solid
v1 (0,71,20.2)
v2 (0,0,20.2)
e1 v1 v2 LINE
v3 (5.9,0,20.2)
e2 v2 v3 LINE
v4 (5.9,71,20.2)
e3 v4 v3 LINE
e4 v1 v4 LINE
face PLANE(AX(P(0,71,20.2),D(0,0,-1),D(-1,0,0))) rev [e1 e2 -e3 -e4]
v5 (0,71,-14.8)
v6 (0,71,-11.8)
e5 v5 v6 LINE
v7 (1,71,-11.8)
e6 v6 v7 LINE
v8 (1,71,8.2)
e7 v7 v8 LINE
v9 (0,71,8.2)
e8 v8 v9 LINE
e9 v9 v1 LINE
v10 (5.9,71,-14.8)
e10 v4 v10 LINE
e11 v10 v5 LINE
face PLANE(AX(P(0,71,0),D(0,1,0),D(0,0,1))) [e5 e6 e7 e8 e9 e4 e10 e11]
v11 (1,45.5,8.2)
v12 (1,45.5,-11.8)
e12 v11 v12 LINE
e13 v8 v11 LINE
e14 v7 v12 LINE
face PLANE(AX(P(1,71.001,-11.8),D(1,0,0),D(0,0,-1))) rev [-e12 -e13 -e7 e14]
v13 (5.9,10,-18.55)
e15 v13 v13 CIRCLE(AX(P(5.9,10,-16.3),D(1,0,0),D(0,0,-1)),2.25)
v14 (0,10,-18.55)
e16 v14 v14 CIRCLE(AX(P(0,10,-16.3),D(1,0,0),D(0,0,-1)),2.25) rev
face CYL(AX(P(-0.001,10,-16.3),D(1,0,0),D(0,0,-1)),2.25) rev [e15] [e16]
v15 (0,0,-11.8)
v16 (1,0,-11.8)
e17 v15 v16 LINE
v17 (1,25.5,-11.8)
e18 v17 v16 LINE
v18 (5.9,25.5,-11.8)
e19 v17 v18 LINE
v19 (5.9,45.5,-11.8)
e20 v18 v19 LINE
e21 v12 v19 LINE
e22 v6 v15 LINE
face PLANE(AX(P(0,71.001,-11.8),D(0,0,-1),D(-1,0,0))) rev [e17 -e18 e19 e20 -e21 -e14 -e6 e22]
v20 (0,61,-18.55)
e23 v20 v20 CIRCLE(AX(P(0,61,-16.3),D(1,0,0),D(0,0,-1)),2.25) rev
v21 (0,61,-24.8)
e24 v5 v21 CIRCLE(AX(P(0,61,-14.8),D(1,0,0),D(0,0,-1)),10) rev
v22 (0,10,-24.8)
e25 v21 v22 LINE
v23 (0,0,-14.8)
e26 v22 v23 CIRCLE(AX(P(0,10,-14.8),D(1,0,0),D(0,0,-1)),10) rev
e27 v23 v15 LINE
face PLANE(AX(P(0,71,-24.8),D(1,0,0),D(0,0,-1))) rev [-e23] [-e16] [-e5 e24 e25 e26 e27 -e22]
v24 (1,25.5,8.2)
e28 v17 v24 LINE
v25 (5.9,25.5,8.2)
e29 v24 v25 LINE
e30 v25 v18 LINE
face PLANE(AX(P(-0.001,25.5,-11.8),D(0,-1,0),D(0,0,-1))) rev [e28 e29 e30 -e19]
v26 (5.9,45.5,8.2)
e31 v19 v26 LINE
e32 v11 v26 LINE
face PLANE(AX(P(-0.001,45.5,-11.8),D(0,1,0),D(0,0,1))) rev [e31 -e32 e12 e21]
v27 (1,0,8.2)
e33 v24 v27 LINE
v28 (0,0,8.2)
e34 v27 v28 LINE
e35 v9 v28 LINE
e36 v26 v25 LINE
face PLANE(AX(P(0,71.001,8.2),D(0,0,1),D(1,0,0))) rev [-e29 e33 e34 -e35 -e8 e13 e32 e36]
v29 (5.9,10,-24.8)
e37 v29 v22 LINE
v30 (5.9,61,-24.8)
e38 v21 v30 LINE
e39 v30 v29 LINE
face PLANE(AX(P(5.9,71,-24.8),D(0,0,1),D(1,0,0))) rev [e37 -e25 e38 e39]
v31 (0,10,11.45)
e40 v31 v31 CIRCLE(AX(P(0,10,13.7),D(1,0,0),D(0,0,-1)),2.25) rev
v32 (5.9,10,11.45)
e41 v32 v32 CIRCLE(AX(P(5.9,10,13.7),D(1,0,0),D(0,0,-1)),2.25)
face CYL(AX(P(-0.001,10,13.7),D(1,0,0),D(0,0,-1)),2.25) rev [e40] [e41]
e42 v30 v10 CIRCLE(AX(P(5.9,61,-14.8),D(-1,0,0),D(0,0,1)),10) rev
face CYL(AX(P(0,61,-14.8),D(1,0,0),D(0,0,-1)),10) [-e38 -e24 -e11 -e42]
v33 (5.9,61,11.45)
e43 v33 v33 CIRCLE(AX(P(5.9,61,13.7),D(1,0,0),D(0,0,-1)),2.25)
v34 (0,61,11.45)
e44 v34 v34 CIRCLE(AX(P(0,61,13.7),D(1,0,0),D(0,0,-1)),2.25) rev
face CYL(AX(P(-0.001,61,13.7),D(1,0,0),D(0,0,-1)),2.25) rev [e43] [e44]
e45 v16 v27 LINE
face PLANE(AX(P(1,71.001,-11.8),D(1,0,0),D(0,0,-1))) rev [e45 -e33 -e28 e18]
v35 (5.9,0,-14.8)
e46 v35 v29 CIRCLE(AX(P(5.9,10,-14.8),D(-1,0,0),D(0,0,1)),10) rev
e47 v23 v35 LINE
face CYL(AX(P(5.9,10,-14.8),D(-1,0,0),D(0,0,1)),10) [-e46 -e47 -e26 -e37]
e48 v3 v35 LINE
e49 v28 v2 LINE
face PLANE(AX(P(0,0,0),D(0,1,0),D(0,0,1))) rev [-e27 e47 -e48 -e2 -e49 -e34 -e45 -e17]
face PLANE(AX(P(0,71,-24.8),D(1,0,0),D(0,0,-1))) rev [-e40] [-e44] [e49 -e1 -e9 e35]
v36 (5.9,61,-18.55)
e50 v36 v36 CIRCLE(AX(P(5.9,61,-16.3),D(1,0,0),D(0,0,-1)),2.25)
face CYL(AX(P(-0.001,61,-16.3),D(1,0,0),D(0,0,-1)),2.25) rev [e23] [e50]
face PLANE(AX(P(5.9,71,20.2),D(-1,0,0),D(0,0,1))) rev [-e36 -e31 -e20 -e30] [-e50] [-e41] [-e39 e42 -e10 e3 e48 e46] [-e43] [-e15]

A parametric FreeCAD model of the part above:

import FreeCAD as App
import Part
import Sketcher

V = App.Vector
Q = App.Units.Quantity


def edges_at(feature, points):
    """Names of the edges that pass closest to the given points."""
    edges = feature.Shape.Edges
    near = lambda p: min(range(len(edges)), key=lambda i: edges[i].distToShape(Part.Vertex(*p))[0])
    return sorted({f"Edge{near(p) + 1}" for p in points})


def add_polygon(sketch, points):
    """Adds a closed chain of lines whose ends are joined by coincident constraints."""
    first, n = sketch.GeometryCount, len(points)
    for a, b in zip(points, points[1:] + points[:1]):
        sketch.addGeometry(Part.LineSegment(App.Vector(*a, 0), App.Vector(*b, 0)), False)
    for i in range(n):
        sketch.addConstraint(Sketcher.Constraint("Coincident", first + i, 2, first + (i + 1) % n, 1))

doc = App.newDocument("Part")
body = doc.addObject("PartDesign::Body", "Body")

# Sketch on XZ plane
sketch1 = body.newObject("Sketcher::SketchObject", "Sketch")
sketch1.AttachmentSupport = (doc.getObject("XZ_Plane"), [""])
sketch1.MapMode = "FlatFace"
add_polygon(sketch1, [(0, -25), (0, 20), (6, 20), (6, -25)])  # lines 0-3
sketch1.addConstraint(Sketcher.Constraint("Vertical", 0))
sketch1.addConstraint(Sketcher.Constraint("Horizontal", 1))
sketch1.addConstraint(Sketcher.Constraint("Vertical", 2))
sketch1.addConstraint(Sketcher.Constraint("Horizontal", 3))
sketch1.addConstraint(Sketcher.Constraint("PointOnObject", 0, 2, -2))
sketch1.addConstraint(Sketcher.Constraint("DistanceY", 0, 1, 0, 2, Q("45 mm")))
sketch1.addConstraint(Sketcher.Constraint("DistanceX", 1, 1, 1, 2, Q("5.9 mm")))
sketch1.addConstraint(Sketcher.Constraint("DistanceY", -1, 1, 0, 2, Q("20.2 mm")))
pad1 = body.newObject("PartDesign::Pad", "Pad")
pad1.Profile = sketch1
pad1.Length = 71
pad1.Reversed = True

# Sketch on XZ plane
sketch2 = body.newObject("Sketcher::SketchObject", "Sketch001")
sketch2.AttachmentSupport = (doc.getObject("XZ_Plane"), [""])
sketch2.MapMode = "FlatFace"
add_polygon(sketch2, [(0, 8.2), (0, -11.8), (1, -11.8), (1, 8.2)])  # lines 0-3
sketch2.addConstraint(Sketcher.Constraint("Vertical", 0))
sketch2.addConstraint(Sketcher.Constraint("Horizontal", 1))
sketch2.addConstraint(Sketcher.Constraint("Vertical", 2))
sketch2.addConstraint(Sketcher.Constraint("Horizontal", 3))
sketch2.addConstraint(Sketcher.Constraint("PointOnObject", 0, 2, -2))
sketch2.addConstraint(Sketcher.Constraint("DistanceX", 1, 1, 1, 2, Q("1 mm")))
sketch2.addConstraint(Sketcher.Constraint("DistanceY", 0, 2, 0, 1, Q("20 mm")))
sketch2.addConstraint(Sketcher.Constraint("DistanceY", 0, 2, -1, 1, Q("11.8 mm")))
pocket1 = body.newObject("PartDesign::Pocket", "Pocket")
pocket1.Profile = sketch2
pocket1.Type = "UpToFirst"
doc.recompute()

fillet = body.newObject("PartDesign::Fillet", "Fillet")
fillet.Base = (pocket1, edges_at(pocket1, [(2.95, 71, -24.8), (2.95, 0, -24.8)]))
fillet.Radius = 10

# Sketch on YZ plane
sketch3 = body.newObject("Sketcher::SketchObject", "Sketch002")
sketch3.AttachmentSupport = (doc.getObject("YZ_Plane"), [""])
sketch3.MapMode = "FlatFace"
sketch3.AttachmentOffset = App.Placement(V(0, 0, 5.9), App.Rotation())
sketch3.addGeometry(Part.Circle(V(61, 13.7, 0), V(0, 0, 1), 2.2), False)
sketch3.addConstraint(Sketcher.Constraint("Diameter", 0, Q("4.5 mm")))
sketch3.addConstraint(Sketcher.Constraint("DistanceX", -1, 1, 0, 3, Q("61 mm")))
sketch3.addConstraint(Sketcher.Constraint("DistanceY", -1, 1, 0, 3, Q("13.7 mm")))
pocket2 = body.newObject("PartDesign::Pocket", "Pocket001")
pocket2.Profile = sketch3
pocket2.Type = "UpToFirst"

# Sketch on YZ plane
sketch4 = body.newObject("Sketcher::SketchObject", "Sketch003")
sketch4.AttachmentSupport = (doc.getObject("YZ_Plane"), [""])
sketch4.MapMode = "FlatFace"
sketch4.AttachmentOffset = App.Placement(V(0, 0, 5.9), App.Rotation())
sketch4.addGeometry(Part.Circle(V(10, 13.7, 0), V(0, 0, 1), 2.2), False)
sketch4.addConstraint(Sketcher.Constraint("Diameter", 0, Q("4.5 mm")))
sketch4.addConstraint(Sketcher.Constraint("DistanceX", -1, 1, 0, 3, Q("10 mm")))
sketch4.addConstraint(Sketcher.Constraint("DistanceY", -1, 1, 0, 3, Q("13.7 mm")))
pocket3 = body.newObject("PartDesign::Pocket", "Pocket002")
pocket3.Profile = sketch4
pocket3.Type = "UpToFirst"

# Sketch on YZ plane
sketch5 = body.newObject("Sketcher::SketchObject", "Sketch004")
sketch5.AttachmentSupport = (doc.getObject("YZ_Plane"), [""])
sketch5.MapMode = "FlatFace"
sketch5.AttachmentOffset = App.Placement(V(0, 0, 5.9), App.Rotation())
sketch5.addGeometry(Part.Circle(V(10, -16.3, 0), V(0, 0, 1), 2.2), False)
sketch5.addConstraint(Sketcher.Constraint("Diameter", 0, Q("4.5 mm")))
sketch5.addConstraint(Sketcher.Constraint("DistanceX", -1, 1, 0, 3, Q("10 mm")))
sketch5.addConstraint(Sketcher.Constraint("DistanceY", 0, 3, -1, 1, Q("16.3 mm")))
pocket4 = body.newObject("PartDesign::Pocket", "Pocket003")
pocket4.Profile = sketch5
pocket4.Type = "UpToFirst"

# Sketch on YZ plane
sketch6 = body.newObject("Sketcher::SketchObject", "Sketch005")
sketch6.AttachmentSupport = (doc.getObject("YZ_Plane"), [""])
sketch6.MapMode = "FlatFace"
sketch6.AttachmentOffset = App.Placement(V(0, 0, 5.9), App.Rotation())
sketch6.addGeometry(Part.Circle(V(61, -16.3, 0), V(0, 0, 1), 2.2), False)
sketch6.addConstraint(Sketcher.Constraint("Diameter", 0, Q("4.5 mm")))
sketch6.addConstraint(Sketcher.Constraint("DistanceX", -1, 1, 0, 3, Q("61 mm")))
sketch6.addConstraint(Sketcher.Constraint("DistanceY", 0, 3, -1, 1, Q("16.3 mm")))
pocket5 = body.newObject("PartDesign::Pocket", "Pocket004")
pocket5.Profile = sketch6
pocket5.Type = "UpToFirst"

# Sketch on YZ plane
sketch7 = body.newObject("Sketcher::SketchObject", "Sketch006")
sketch7.AttachmentSupport = (doc.getObject("YZ_Plane"), [""])
sketch7.MapMode = "FlatFace"
sketch7.AttachmentOffset = App.Placement(V(0, 0, 5.9), App.Rotation())
add_polygon(sketch7, [(46, 8), (26, 8), (26, -12), (46, -12)])  # lines 0-3
sketch7.addConstraint(Sketcher.Constraint("Horizontal", 0))
sketch7.addConstraint(Sketcher.Constraint("Vertical", 1))
sketch7.addConstraint(Sketcher.Constraint("Horizontal", 2))
sketch7.addConstraint(Sketcher.Constraint("Vertical", 3))
sketch7.addConstraint(Sketcher.Constraint("Equal", 2, 1))
sketch7.addConstraint(Sketcher.Constraint("DistanceX", 0, 2, 0, 1, Q("20 mm")))
sketch7.addConstraint(Sketcher.Constraint("DistanceX", -1, 1, 0, 2, Q("25.5 mm")))
sketch7.addConstraint(Sketcher.Constraint("DistanceY", -1, 1, 0, 2, Q("8.2 mm")))
pocket6 = body.newObject("PartDesign::Pocket", "Pocket005")
pocket6.Profile = sketch7
pocket6.Type = "UpToFirst"

doc.recompute()
